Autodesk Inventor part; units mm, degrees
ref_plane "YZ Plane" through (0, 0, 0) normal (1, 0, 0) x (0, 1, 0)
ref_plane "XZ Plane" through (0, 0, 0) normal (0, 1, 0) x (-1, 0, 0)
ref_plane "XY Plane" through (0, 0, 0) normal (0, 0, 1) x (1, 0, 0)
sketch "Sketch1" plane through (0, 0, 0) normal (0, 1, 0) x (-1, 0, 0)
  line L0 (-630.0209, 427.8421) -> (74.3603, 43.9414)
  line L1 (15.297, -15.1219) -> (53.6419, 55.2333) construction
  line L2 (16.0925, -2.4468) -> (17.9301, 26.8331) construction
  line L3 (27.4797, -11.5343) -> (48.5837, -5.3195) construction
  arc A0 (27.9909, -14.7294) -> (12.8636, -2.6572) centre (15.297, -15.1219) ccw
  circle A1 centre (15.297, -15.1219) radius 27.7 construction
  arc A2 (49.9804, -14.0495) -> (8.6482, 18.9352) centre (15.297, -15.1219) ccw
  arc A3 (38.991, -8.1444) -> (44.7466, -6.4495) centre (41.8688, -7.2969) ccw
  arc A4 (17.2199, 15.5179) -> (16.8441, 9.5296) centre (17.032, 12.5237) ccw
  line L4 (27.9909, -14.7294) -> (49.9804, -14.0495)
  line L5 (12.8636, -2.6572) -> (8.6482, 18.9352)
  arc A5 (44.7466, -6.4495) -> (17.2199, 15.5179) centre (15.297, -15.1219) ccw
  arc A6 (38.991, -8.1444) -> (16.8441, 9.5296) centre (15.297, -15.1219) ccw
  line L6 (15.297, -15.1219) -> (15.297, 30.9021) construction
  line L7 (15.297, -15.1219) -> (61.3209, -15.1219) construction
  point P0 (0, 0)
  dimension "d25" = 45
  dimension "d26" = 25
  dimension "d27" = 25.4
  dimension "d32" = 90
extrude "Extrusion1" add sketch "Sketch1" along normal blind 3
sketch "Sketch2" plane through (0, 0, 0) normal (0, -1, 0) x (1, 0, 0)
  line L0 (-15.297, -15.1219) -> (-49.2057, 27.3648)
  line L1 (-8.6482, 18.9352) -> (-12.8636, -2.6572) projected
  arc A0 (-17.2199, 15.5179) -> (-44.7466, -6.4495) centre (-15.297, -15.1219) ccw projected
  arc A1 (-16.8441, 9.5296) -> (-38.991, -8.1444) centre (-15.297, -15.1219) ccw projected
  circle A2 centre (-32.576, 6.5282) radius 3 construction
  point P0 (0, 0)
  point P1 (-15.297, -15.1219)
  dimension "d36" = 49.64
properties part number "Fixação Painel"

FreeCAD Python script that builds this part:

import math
import FreeCAD as App
import Part
import Sketcher
Q = App.Units.Quantity

doc = App.newDocument("Part")
body = doc.addObject("PartDesign::Body", "Body")

sketch1 = doc.addObject("Sketcher::SketchObject", "Sketch")
body.addObject(sketch1)
sketch1.AttachmentSupport = (doc.XZ_Plane, [""])
sketch1.MapMode = "FlatFace"
sketch1.addGeometry(Part.ArcOfCircle(Part.Circle(App.Vector(-15.3, -15.1, 0), App.Vector(0, 0, 1), 12.7), math.radians(79), math.radians(178)), False)
sketch1.addGeometry(Part.LineSegment(App.Vector(-28, -14.7, 0), App.Vector(-50, -14, 0)), False)
sketch1.addGeometry(Part.ArcOfCircle(Part.Circle(App.Vector(-15.3, -15.1, 0), App.Vector(0, 0, 1), 34.7), math.radians(79), math.radians(178)), False)
sketch1.addGeometry(Part.LineSegment(App.Vector(-8.6, 18.9, 0), App.Vector(-12.9, -2.7, 0)), False)
sketch1.addGeometry(Part.ArcOfCircle(Part.Circle(App.Vector(-41.9, -7.3, 0), App.Vector(0, 0, 1), 3), math.radians(164), math.radians(344)), False)
sketch1.addGeometry(Part.ArcOfCircle(Part.Circle(App.Vector(-15.3, -15.1, 0), App.Vector(0, 0, 1), 24.7), math.radians(94), math.radians(164)), False)
sketch1.addGeometry(Part.ArcOfCircle(Part.Circle(App.Vector(-17, 12.5, 0), App.Vector(0, 0, 1), 3), math.radians(-86), math.radians(94)), False)
sketch1.addGeometry(Part.ArcOfCircle(Part.Circle(App.Vector(-15.3, -15.1, 0), App.Vector(0, 0, 1), 30.7), math.radians(94), math.radians(164)), False)
sketch1.addConstraint(Sketcher.Constraint("Coincident", 0, 2, 1, 1))
sketch1.addConstraint(Sketcher.Constraint("Coincident", 1, 2, 2, 2))
sketch1.addConstraint(Sketcher.Constraint("Coincident", 2, 1, 3, 1))
sketch1.addConstraint(Sketcher.Constraint("Coincident", 3, 2, 0, 1))
sketch1.addConstraint(Sketcher.Constraint("Tangent", 4, 2, 5, 2))
sketch1.addConstraint(Sketcher.Constraint("Tangent", 5, 1, 6, 1))
sketch1.addConstraint(Sketcher.Constraint("Tangent", 6, 2, 7, 1))
sketch1.addConstraint(Sketcher.Constraint("Tangent", 7, 2, 4, 1))
sketch1.addConstraint(Sketcher.Constraint("Coincident", 2, 3, 0, 3))
sketch1.addConstraint(Sketcher.Constraint("Coincident", 5, 3, 0, 3))
sketch1.addConstraint(Sketcher.Constraint("Coincident", 7, 3, 0, 3))
sketch1.addConstraint(Sketcher.Constraint("Radius", 0, 12.7))
sketch1.addConstraint(Sketcher.Constraint("Radius", 4, 3.0))
sketch1.addConstraint(Sketcher.Constraint("Radius", 2, 34.7))
sketch1.addConstraint(Sketcher.Constraint("Radius", 5, 24.7))
sketch1.addConstraint(Sketcher.Constraint("DistanceX", 4, 2, 0, 2, 11.0))
sketch1.addConstraint(Sketcher.Constraint("Angle", 1, Q("178.229 deg")))
sketch1.addConstraint(Sketcher.Constraint("DistanceY", 1, 2, 7, 2, 7.6))
sketch1.addConstraint(Sketcher.Constraint("DistanceX", 6, 2, -1, 1, 17.22))
sketch1.addConstraint(Sketcher.Constraint("DistanceX", 0, 3, -1, 1, 15.297))
sketch1.addConstraint(Sketcher.Constraint("DistanceY", 0, 3, -1, 1, 15.122))
sketch1.addConstraint(Sketcher.Constraint("DistanceY", 0, 3, 2, 1, 34.057))
sketch1.addConstraint(Sketcher.Constraint("DistanceY", 3, 2, 6, 3, 15.181))
pad1 = doc.addObject("PartDesign::Pad", "Pad")
body.addObject(pad1)
pad1.Profile = sketch1
pad1.Length = 3
pad1.Reversed = True

doc.recompute()
